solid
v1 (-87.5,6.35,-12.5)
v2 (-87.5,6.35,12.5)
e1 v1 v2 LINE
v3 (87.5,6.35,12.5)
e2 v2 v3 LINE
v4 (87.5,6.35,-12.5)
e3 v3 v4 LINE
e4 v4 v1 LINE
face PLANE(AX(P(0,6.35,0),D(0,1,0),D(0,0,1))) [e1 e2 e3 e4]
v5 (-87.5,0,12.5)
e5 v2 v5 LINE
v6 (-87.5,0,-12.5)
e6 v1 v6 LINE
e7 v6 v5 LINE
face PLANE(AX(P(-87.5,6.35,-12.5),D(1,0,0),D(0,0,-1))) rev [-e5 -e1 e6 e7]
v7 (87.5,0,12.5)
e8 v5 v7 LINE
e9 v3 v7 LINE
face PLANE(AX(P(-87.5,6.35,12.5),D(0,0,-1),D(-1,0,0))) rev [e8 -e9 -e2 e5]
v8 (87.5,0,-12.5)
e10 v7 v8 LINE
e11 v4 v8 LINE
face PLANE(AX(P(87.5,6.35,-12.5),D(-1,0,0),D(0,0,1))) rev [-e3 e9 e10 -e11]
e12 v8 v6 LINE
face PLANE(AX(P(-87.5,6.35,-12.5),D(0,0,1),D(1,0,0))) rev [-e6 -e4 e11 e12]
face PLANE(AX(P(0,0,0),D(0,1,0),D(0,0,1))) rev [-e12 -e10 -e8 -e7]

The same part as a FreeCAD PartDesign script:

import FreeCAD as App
import Part
import Sketcher
from FreeCAD import Vector


def add_polygon(sketch, points):
    """Adds a closed chain of lines whose ends are joined by coincident constraints."""
    first, n = sketch.GeometryCount, len(points)
    for a, b in zip(points, points[1:] + points[:1]):
        sketch.addGeometry(Part.LineSegment(App.Vector(*a, 0), App.Vector(*b, 0)), False)
    for i in range(n):
        sketch.addConstraint(Sketcher.Constraint("Coincident", first + i, 2, first + (i + 1) % n, 1))

doc = App.newDocument("Part")
body = doc.addObject("PartDesign::Body", "Body")

sketch1 = body.newObject("Sketcher::SketchObject", "Sketch")
sketch1.AttachmentSupport = (doc.getObject("XZ_Plane"), [""])
sketch1.MapMode = "FlatFace"
add_polygon(sketch1, [(-88, -12), (-88, 12), (88, 12), (88, -12)])
sketch1.addConstraint(Sketcher.Constraint("Vertical", 0))
sketch1.addConstraint(Sketcher.Constraint("Horizontal", 1))
sketch1.addConstraint(Sketcher.Constraint("Vertical", 2))
sketch1.addConstraint(Sketcher.Constraint("Horizontal", 3))
sketch1.addConstraint(Sketcher.Constraint("Symmetric", 0, 2, 2, 2, -1, 1))
sketch1.addConstraint(Sketcher.Constraint("DistanceX", 1, 1, 1, 2, 175.0))
sketch1.addConstraint(Sketcher.Constraint("DistanceY", 0, 1, 0, 2, 25.0))
pad1 = body.newObject("PartDesign::Pad", "Pad")
pad1.Profile = sketch1
pad1.Length = 6.35
pad1.Reversed = True

doc.recompute()
